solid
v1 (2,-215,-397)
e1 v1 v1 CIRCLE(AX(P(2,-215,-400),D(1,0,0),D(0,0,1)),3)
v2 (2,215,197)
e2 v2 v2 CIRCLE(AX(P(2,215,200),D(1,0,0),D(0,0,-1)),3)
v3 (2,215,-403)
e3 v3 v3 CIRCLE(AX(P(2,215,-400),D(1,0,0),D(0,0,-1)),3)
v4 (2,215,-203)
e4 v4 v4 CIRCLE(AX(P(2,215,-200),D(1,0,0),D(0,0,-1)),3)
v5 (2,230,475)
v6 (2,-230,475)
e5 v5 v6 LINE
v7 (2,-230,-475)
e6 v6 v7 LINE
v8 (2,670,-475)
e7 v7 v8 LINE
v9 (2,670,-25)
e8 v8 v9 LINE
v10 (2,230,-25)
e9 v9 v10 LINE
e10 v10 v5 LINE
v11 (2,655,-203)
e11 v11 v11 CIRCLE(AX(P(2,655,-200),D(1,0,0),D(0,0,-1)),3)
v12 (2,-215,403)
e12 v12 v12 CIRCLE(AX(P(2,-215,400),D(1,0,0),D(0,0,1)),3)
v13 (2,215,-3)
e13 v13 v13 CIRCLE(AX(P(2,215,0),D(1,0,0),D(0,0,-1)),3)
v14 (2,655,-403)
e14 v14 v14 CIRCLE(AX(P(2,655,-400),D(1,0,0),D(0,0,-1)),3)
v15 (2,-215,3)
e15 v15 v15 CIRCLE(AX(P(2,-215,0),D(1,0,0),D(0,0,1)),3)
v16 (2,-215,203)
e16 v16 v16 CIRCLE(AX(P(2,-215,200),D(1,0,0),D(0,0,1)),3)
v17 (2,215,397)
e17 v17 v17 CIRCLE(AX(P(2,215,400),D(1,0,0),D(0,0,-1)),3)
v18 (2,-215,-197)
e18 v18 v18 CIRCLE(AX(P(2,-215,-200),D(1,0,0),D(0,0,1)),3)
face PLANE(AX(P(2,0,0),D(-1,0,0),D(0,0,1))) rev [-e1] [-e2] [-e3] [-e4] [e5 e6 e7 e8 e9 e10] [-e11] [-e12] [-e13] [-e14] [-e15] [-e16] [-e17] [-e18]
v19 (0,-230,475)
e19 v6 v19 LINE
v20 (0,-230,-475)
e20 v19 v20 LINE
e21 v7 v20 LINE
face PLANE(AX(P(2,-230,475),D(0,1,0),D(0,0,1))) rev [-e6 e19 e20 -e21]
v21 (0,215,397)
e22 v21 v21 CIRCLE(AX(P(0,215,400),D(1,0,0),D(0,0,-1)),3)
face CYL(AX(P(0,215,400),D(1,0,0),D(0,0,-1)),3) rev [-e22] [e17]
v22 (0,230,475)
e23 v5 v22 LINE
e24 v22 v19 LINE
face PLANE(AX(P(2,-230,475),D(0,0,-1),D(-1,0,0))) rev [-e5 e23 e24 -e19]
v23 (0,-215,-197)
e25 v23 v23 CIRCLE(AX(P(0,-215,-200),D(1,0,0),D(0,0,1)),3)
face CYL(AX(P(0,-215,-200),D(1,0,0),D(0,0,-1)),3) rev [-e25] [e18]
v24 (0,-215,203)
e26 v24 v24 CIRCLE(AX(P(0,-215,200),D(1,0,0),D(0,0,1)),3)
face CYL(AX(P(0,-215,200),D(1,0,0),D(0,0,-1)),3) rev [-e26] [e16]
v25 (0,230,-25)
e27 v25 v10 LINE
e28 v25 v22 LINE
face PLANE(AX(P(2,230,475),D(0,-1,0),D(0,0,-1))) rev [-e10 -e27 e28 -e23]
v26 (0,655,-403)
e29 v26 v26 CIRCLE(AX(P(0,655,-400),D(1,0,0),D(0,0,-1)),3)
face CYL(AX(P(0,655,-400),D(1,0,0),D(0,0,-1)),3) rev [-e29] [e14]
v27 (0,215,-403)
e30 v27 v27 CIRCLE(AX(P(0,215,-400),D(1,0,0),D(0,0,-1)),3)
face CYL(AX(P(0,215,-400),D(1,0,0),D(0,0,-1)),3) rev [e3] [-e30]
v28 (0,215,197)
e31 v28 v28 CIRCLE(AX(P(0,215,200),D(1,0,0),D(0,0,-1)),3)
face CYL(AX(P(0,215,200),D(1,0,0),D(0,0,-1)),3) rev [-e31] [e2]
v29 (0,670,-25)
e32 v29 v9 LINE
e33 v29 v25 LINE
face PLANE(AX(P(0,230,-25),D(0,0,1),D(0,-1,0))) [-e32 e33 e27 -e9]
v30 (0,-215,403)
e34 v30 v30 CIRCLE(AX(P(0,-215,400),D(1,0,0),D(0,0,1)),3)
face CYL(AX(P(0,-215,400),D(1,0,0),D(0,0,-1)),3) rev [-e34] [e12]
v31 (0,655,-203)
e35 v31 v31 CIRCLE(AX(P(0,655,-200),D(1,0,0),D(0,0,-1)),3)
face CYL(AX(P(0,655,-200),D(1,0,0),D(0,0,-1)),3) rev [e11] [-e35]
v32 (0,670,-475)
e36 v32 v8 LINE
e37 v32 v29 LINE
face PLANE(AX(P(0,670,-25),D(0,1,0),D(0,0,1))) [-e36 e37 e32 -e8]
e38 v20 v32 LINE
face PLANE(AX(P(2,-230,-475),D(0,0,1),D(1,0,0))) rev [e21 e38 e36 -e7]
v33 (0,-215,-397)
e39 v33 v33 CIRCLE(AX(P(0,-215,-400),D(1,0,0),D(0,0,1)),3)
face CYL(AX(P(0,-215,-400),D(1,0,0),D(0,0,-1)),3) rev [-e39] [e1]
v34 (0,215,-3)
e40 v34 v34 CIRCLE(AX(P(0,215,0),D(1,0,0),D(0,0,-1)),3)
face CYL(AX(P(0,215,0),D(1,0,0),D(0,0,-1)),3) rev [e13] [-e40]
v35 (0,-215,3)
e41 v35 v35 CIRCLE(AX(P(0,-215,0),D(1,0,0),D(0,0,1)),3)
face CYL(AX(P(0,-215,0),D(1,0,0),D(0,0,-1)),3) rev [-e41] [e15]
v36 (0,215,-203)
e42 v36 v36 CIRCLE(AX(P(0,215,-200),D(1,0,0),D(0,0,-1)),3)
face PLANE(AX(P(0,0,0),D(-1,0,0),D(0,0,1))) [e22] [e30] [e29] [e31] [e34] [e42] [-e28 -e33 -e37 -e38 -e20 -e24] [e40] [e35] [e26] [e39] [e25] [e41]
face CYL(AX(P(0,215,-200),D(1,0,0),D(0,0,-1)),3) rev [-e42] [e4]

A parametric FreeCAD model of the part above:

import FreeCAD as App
import Part
import Sketcher

V = App.Vector


def add_polygon(sketch, points):
    """Adds a closed chain of lines whose ends are joined by coincident constraints."""
    first, n = sketch.GeometryCount, len(points)
    for a, b in zip(points, points[1:] + points[:1]):
        sketch.addGeometry(Part.LineSegment(App.Vector(*a, 0), App.Vector(*b, 0)), False)
    for i in range(n):
        sketch.addConstraint(Sketcher.Constraint("Coincident", first + i, 2, first + (i + 1) % n, 1))

doc = App.newDocument("Part")
params = doc.addObject("Spreadsheet::Sheet", "Params")
for row, (alias, value) in enumerate([
    ("sketch1_width", "460 mm"),
    ("sketch1_height", "950 mm"),
    ("pad1_length", "2 mm"),
    ("sketch2_diameter", "6 mm"),
    ("pocket1_length", "2 mm"),
    ("sketch3_diameter", "6 mm"),
    ("sketch3_width", "440 mm"),
    ("sketch3_height", "450 mm"),
    ("pad2_length", "2 mm"),
], start=1):
    params.set(f"A{row}", alias)
    params.set(f"B{row}", "=" + value)
    params.setAlias(f"B{row}", alias)

body = doc.addObject("PartDesign::Body", "Body")

# Sketch on YZ plane
sketch1 = body.newObject("Sketcher::SketchObject", "Sketch")
sketch1.AttachmentSupport = (doc.getObject("YZ_Plane"), [""])
sketch1.MapMode = "FlatFace"
add_polygon(sketch1, [(230, 475), (-230, 475), (-230, -475), (230, -475)])  # lines 0-3
sketch1.addConstraint([
    Sketcher.Constraint("Horizontal", 0),
    Sketcher.Constraint("Vertical", 1),
    Sketcher.Constraint("Horizontal", 2),
    Sketcher.Constraint("Vertical", 3),
    Sketcher.Constraint("Symmetric", 0, 2, 2, 2, -1, 1),
    Sketcher.Constraint("DistanceX", 0, 2, 0, 1, 460.0),
    Sketcher.Constraint("DistanceY", 1, 2, 1, 1, 950.0),
])
sketch1.setExpression("Constraints[9]", "Params.sketch1_width")
sketch1.setExpression("Constraints[10]", "Params.sketch1_height")
pad1 = body.newObject("PartDesign::Pad", "Pad")
pad1.Profile = sketch1
pad1.setExpression("Length", "Params.pad1_length")

# Sketch on YZ plane
sketch2 = body.newObject("Sketcher::SketchObject", "Sketch001")
sketch2.AttachmentSupport = (doc.getObject("YZ_Plane"), [""])
sketch2.MapMode = "FlatFace"
sketch2.AttachmentOffset = App.Placement(V(0, 0, 2), App.Rotation())
sketch2.addGeometry([
    Part.Circle(V(215, 400, 0), V(0, 0, 1), 3),  # 0
    Part.Circle(V(215, 200, 0), V(0, 0, 1), 3),  # 1
    Part.Circle(V(215, 0, 0), V(0, 0, 1), 3),  # 2
    Part.Circle(V(215, -200, 0), V(0, 0, 1), 3),  # 3
    Part.Circle(V(215, -400, 0), V(0, 0, 1), 3),  # 4
    Part.Circle(V(-215, -400, 0), V(0, 0, 1), 3),  # 5
    Part.Circle(V(-215, 0, 0), V(0, 0, 1), 3),  # 6
    Part.Circle(V(-215, -200, 0), V(0, 0, 1), 3),  # 7
    Part.Circle(V(-215, 200, 0), V(0, 0, 1), 3),  # 8
    Part.Circle(V(-215, 400, 0), V(0, 0, 1), 3),  # 9
], False)
sketch2.addConstraint([
    Sketcher.Constraint("Equal", 0, 1),
    Sketcher.Constraint("Equal", 1, 2),
    Sketcher.Constraint("Equal", 2, 3),
    Sketcher.Constraint("Equal", 3, 4),
    Sketcher.Constraint("Equal", 4, 5),
    Sketcher.Constraint("Equal", 5, 6),
    Sketcher.Constraint("Equal", 6, 7),
    Sketcher.Constraint("Equal", 7, 8),
    Sketcher.Constraint("Equal", 8, 9),
    Sketcher.Constraint("Symmetric", 0, 3, 5, 3, -1, 1),
    Sketcher.Constraint("Symmetric", 2, 3, 6, 3, -1, 1),
    Sketcher.Constraint("Symmetric", 1, 3, 7, 3, -1, 1),
    Sketcher.Constraint("Symmetric", 3, 3, 8, 3, -1, 1),
    Sketcher.Constraint("Symmetric", 4, 3, 9, 3, -1, 1),
    Sketcher.Constraint("Symmetric", 4, 3, 5, 3, -2),
    Sketcher.Constraint("Symmetric", 3, 3, 7, 3, -2),
    Sketcher.Constraint("PointOnObject", 2, 3, -1),
    Sketcher.Constraint("Vertical", 0, 3, 1, 3),
    Sketcher.Constraint("Vertical", 1, 3, 2, 3),
    Sketcher.Constraint("Diameter", 0, 6.0),
    Sketcher.Constraint("DistanceX", -1, 1, 0, 3, 215.0),
    Sketcher.Constraint("DistanceY", -1, 1, 0, 3, 400.0),
    Sketcher.Constraint("DistanceY", -1, 1, 1, 3, 200.0),
])
sketch2.setExpression("Constraints[19]", "Params.sketch2_diameter")
pocket1 = body.newObject("PartDesign::Pocket", "Pocket")
pocket1.Profile = sketch2
pocket1.setExpression("Length", "Params.pocket1_length")

# Sketch on YZ plane
sketch3 = body.newObject("Sketcher::SketchObject", "Sketch002")
sketch3.AttachmentSupport = (doc.getObject("YZ_Plane"), [""])
sketch3.MapMode = "FlatFace"
sketch3.AttachmentOffset = App.Placement(V(0, 0, 2), App.Rotation())
add_polygon(sketch3, [(670, -25), (230, -25), (230, -475), (670, -475)])  # lines 0-3
sketch3.addGeometry(Part.Circle(V(655, -200, 0), V(0, 0, 1), 3), False)  # 4
sketch3.addGeometry(Part.Circle(V(655, -400, 0), V(0, 0, 1), 3), False)  # 5
sketch3.addConstraint([
    Sketcher.Constraint("Horizontal", 0),
    Sketcher.Constraint("Vertical", 1),
    Sketcher.Constraint("Horizontal", 2),
    Sketcher.Constraint("Vertical", 3),
    Sketcher.Constraint("Equal", 4, 5),
    Sketcher.Constraint("Vertical", 4, 3, 5, 3),
    Sketcher.Constraint("Diameter", 4, 6.0),
    Sketcher.Constraint("DistanceX", 0, 2, 0, 1, 440.0),
    Sketcher.Constraint("DistanceY", 1, 2, 1, 1, 450.0),
    Sketcher.Constraint("DistanceX", -1, 1, 4, 3, 655.0),
    Sketcher.Constraint("DistanceY", 4, 3, -1, 1, 200.0),
    Sketcher.Constraint("DistanceY", 5, 3, -1, 1, 400.0),
    Sketcher.Constraint("DistanceX", -1, 1, 0, 2, 230.0),
    Sketcher.Constraint("DistanceY", 0, 2, -1, 1, 25.0),
])
sketch3.setExpression("Constraints[10]", "Params.sketch3_diameter")
sketch3.setExpression("Constraints[11]", "Params.sketch3_width")
sketch3.setExpression("Constraints[12]", "Params.sketch3_height")
pad2 = body.newObject("PartDesign::Pad", "Pad001")
pad2.Profile = sketch3
pad2.setExpression("Length", "Params.pad2_length")
pad2.Reversed = True

doc.recompute()
